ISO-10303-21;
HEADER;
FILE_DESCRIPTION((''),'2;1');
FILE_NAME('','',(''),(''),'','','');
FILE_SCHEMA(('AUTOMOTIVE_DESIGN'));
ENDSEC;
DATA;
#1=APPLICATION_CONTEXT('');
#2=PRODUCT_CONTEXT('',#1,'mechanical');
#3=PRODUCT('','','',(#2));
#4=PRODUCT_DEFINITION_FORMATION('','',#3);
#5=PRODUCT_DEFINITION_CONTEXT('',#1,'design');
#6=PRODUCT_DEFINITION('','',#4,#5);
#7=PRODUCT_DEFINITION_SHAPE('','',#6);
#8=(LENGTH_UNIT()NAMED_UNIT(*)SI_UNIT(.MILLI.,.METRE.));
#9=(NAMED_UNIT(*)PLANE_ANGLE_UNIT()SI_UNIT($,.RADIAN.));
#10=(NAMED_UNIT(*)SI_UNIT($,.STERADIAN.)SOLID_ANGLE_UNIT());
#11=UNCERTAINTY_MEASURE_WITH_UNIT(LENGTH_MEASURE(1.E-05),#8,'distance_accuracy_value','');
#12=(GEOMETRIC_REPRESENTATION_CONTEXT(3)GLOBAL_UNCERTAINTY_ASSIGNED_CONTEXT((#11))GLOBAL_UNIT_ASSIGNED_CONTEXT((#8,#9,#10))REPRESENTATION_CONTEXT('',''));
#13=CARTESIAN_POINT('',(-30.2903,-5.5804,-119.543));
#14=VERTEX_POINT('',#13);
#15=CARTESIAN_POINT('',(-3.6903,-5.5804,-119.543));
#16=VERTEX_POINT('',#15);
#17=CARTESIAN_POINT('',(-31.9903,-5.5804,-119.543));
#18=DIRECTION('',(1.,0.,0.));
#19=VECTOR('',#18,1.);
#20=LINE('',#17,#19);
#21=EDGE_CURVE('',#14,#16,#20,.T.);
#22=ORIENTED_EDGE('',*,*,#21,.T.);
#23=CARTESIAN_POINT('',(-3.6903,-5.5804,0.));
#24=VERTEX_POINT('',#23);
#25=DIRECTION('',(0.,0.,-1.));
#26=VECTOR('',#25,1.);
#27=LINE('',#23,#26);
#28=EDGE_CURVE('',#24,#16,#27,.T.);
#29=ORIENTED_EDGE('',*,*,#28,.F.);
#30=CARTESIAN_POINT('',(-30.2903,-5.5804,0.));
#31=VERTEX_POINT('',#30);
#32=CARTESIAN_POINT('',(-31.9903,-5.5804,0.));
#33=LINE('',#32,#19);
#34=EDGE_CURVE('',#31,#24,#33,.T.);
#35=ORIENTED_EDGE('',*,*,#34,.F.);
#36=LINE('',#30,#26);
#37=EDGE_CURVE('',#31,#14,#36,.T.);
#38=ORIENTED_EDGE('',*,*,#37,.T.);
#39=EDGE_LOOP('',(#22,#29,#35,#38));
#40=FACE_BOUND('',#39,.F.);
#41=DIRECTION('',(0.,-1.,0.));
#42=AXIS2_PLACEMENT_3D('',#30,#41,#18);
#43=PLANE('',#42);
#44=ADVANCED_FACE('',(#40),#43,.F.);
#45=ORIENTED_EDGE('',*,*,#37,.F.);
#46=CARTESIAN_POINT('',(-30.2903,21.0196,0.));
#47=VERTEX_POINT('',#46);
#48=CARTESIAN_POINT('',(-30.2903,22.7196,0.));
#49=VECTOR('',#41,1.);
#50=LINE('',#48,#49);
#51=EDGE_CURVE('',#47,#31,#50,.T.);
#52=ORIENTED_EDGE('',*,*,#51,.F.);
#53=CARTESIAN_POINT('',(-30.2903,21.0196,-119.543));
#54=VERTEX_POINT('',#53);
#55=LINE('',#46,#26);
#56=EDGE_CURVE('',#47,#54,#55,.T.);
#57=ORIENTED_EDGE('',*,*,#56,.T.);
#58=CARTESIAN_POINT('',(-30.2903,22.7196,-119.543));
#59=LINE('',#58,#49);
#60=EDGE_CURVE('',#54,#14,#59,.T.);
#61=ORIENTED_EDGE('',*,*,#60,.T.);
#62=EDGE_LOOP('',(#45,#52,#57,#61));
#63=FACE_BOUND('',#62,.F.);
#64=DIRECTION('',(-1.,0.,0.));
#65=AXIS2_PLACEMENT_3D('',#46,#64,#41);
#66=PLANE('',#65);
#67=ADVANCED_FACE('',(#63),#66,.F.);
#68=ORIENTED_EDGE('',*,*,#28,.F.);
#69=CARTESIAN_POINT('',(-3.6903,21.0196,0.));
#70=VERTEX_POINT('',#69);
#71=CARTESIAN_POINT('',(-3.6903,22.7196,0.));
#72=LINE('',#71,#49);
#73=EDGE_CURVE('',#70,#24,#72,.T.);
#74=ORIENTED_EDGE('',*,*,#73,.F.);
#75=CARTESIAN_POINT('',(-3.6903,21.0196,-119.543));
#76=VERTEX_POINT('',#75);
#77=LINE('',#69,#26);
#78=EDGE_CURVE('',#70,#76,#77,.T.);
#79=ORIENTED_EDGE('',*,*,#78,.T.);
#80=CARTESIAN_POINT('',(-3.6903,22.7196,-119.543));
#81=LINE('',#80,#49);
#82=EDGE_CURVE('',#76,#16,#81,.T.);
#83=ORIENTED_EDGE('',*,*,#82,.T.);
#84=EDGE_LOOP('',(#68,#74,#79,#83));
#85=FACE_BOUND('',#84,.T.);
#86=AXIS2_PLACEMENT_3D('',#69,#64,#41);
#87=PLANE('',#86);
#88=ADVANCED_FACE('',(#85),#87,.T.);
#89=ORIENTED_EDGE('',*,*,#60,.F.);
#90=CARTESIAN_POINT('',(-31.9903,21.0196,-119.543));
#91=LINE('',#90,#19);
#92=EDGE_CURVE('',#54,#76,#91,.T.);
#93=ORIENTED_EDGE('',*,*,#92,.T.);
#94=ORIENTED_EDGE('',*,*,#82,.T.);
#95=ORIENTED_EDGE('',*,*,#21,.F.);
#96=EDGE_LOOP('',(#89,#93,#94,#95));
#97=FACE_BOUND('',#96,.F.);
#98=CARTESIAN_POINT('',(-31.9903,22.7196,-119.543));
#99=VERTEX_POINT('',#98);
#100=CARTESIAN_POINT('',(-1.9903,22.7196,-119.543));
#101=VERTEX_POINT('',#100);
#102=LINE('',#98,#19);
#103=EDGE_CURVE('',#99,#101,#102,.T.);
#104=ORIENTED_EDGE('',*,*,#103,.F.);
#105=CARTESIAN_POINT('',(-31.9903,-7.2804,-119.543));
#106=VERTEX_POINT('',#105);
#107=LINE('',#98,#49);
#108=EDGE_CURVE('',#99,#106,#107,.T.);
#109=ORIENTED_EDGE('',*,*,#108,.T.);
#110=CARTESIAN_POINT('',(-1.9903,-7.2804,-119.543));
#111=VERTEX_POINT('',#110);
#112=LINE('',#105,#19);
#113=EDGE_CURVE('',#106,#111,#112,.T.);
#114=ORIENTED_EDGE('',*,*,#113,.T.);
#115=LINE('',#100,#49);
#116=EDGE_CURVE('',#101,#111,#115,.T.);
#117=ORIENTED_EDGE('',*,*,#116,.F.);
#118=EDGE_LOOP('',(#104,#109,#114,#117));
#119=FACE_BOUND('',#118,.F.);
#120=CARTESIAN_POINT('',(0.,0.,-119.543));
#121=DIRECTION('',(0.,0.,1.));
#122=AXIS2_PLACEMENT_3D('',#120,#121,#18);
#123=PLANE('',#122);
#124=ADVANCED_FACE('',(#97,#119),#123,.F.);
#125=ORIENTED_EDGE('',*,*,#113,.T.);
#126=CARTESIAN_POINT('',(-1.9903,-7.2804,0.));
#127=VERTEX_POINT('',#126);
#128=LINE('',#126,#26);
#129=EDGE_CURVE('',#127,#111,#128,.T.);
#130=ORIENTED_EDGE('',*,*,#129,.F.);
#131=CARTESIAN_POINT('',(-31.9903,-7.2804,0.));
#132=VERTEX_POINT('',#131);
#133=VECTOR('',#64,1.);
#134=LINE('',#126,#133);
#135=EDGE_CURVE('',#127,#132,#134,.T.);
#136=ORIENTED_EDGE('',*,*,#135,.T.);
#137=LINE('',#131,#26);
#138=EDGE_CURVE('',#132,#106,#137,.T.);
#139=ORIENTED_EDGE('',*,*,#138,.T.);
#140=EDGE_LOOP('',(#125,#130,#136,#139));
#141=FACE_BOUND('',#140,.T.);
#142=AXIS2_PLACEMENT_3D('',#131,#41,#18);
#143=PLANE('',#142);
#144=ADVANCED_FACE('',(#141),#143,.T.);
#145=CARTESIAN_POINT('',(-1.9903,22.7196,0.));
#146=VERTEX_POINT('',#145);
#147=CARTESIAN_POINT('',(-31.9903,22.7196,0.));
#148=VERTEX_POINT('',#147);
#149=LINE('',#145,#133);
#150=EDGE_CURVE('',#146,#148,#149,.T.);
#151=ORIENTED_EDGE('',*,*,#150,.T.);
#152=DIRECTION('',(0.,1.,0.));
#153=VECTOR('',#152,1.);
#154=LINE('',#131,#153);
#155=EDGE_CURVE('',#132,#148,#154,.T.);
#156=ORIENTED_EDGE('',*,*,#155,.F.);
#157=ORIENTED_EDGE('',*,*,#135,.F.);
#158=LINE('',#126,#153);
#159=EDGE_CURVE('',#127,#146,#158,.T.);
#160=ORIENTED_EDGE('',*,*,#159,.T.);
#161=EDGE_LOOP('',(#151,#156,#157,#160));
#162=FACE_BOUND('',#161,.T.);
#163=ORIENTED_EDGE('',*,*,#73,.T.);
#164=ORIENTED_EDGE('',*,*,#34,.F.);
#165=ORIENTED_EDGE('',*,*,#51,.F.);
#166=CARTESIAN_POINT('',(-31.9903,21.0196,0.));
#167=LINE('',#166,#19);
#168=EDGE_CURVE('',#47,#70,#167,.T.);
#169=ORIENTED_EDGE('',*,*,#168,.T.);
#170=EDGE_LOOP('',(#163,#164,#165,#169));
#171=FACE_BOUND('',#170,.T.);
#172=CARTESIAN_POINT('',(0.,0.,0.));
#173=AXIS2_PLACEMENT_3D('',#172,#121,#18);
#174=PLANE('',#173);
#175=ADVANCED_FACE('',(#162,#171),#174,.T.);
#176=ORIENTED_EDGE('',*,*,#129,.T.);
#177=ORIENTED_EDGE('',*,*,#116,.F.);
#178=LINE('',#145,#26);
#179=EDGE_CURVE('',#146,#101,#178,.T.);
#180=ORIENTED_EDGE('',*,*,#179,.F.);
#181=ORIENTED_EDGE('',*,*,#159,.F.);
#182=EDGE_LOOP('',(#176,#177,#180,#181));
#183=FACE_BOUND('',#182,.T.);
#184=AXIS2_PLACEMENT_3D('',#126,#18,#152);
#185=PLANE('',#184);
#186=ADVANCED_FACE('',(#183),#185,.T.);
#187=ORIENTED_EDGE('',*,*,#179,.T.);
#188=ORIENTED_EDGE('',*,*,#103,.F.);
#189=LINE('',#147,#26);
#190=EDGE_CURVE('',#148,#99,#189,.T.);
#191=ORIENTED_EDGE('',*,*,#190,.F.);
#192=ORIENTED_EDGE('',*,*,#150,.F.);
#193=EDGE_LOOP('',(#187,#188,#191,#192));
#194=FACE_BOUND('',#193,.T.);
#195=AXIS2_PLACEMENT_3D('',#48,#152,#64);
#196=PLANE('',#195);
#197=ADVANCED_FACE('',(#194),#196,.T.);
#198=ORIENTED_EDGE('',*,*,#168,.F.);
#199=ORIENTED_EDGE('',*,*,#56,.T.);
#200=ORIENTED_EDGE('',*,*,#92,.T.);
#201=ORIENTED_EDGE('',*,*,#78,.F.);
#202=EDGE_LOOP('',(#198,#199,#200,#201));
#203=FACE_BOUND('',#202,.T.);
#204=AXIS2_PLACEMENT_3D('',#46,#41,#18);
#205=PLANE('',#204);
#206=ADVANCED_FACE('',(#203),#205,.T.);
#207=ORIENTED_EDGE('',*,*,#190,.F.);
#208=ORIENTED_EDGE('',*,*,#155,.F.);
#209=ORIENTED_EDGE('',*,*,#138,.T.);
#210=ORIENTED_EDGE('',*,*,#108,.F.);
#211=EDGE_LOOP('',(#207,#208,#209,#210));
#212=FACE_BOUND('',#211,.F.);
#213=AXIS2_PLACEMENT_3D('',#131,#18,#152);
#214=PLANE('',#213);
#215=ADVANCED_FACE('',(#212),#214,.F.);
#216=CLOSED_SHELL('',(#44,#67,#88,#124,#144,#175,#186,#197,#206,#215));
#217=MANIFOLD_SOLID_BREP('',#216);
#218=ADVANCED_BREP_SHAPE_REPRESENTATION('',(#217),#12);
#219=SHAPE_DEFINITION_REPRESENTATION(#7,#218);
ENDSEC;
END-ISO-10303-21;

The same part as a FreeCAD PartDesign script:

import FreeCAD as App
import Part
import Sketcher
Q = App.Units.Quantity


def add_polygon(sketch, points):
    """Adds a closed chain of lines whose ends are joined by coincident constraints."""
    first, n = sketch.GeometryCount, len(points)
    for a, b in zip(points, points[1:] + points[:1]):
        sketch.addGeometry(Part.LineSegment(App.Vector(*a, 0), App.Vector(*b, 0)), False)
    for i in range(n):
        sketch.addConstraint(Sketcher.Constraint("Coincident", first + i, 2, first + (i + 1) % n, 1))

doc = App.newDocument("Part")
body = doc.addObject("PartDesign::Body", "Body")

sketch1 = body.newObject("Sketcher::SketchObject", "Sketch")
sketch1.AttachmentSupport = (doc.getObject("XY_Plane"), [""])
sketch1.MapMode = "FlatFace"
add_polygon(sketch1, [(-32, -7), (-2, -7), (-2, 23), (-32, 23)])
sketch1.addConstraint([
    Sketcher.Constraint("Horizontal", 0),
    Sketcher.Constraint("Vertical", 1),
    Sketcher.Constraint("Horizontal", 2),
    Sketcher.Constraint("Vertical", 3),
    Sketcher.Constraint("Equal", 2, 1),
    Sketcher.Constraint("DistanceX", 0, 1, 0, 2, Q("30 mm")),
    Sketcher.Constraint("DistanceX", 0, 2, -1, 1, Q("1.9903 mm")),
    Sketcher.Constraint("DistanceY", 0, 2, -1, 1, Q("7.2804 mm")),
])
pad1 = body.newObject("PartDesign::Pad", "Pad")
pad1.Profile = sketch1
pad1.Length = 119.543
pad1.Reversed = True

sketch2 = body.newObject("Sketcher::SketchObject", "Sketch001")
sketch2.AttachmentSupport = (doc.getObject("XY_Plane"), [""])
sketch2.MapMode = "FlatFace"
add_polygon(sketch2, [(-30, 21), (-30, -6), (-4, -6), (-4, 21)])
sketch2.addConstraint([
    Sketcher.Constraint("Vertical", 0),
    Sketcher.Constraint("Horizontal", 1),
    Sketcher.Constraint("Vertical", 2),
    Sketcher.Constraint("Horizontal", 3),
    Sketcher.Constraint("Equal", 3, 0),
    Sketcher.Constraint("DistanceX", 1, 1, 1, 2, Q("26.6 mm")),
    Sketcher.Constraint("DistanceX", 0, 2, -1, 1, Q("30.2903 mm")),
    Sketcher.Constraint("DistanceY", 0, 2, -1, 1, Q("5.5804 mm")),
])
pocket1 = body.newObject("PartDesign::Pocket", "Pocket")
pocket1.Profile = sketch2
pocket1.Length = 119.543

doc.recompute()
